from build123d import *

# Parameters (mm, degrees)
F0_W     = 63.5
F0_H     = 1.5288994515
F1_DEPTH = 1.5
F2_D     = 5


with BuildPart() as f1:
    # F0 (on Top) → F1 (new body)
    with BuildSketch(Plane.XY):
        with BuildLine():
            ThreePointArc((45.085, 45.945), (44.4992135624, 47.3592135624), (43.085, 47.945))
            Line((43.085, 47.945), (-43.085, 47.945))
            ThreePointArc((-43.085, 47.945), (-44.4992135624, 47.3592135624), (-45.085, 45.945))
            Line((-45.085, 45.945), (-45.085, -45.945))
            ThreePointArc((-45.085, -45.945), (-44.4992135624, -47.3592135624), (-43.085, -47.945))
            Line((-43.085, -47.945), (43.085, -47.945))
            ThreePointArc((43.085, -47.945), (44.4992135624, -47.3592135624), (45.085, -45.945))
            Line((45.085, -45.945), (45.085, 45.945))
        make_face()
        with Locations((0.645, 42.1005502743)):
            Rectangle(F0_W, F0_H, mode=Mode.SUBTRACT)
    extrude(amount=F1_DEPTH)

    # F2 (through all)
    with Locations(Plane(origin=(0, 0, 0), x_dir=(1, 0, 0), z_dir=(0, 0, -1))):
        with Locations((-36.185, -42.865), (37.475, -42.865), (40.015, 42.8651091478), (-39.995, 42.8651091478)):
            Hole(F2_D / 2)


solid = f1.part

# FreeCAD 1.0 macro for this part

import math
import FreeCAD as App
import Part
import Sketcher

V = App.Vector

doc = App.newDocument("Part")
body = doc.addObject("PartDesign::Body", "Body")

sketch1 = body.newObject("Sketcher::SketchObject", "Sketch")
sketch1.AttachmentSupport = (doc.getObject("XY_Plane"), [""])
sketch1.MapMode = "FlatFace"
sketch1.addGeometry(Part.ArcOfCircle(Part.Circle(V(43.1, 45.9, 0), V(0, 0, 1), 2), math.radians(0), math.radians(90)), False)
sketch1.addGeometry(Part.LineSegment(V(43.1, 47.9, 0), V(-43.1, 47.9, 0)), False)
sketch1.addGeometry(Part.ArcOfCircle(Part.Circle(V(-43.1, 45.9, 0), V(0, 0, 1), 2), math.radians(90), math.radians(180)), False)
sketch1.addGeometry(Part.LineSegment(V(-45.1, 45.9, 0), V(-45.1, -45.9, 0)), False)
sketch1.addGeometry(Part.ArcOfCircle(Part.Circle(V(-43.1, -45.9, 0), V(0, 0, 1), 2), math.radians(180), math.radians(270)), False)
sketch1.addGeometry(Part.LineSegment(V(-43.1, -47.9, 0), V(43.1, -47.9, 0)), False)
sketch1.addGeometry(Part.ArcOfCircle(Part.Circle(V(43.1, -45.9, 0), V(0, 0, 1), 2), math.radians(-90), math.radians(0)), False)
sketch1.addGeometry(Part.LineSegment(V(45.1, -45.9, 0), V(45.1, 45.9, 0)), False)
sketch1.addGeometry(Part.LineSegment(V(32.4, 41.3, 0), V(-31.1, 41.3, 0)), False)
sketch1.addGeometry(Part.LineSegment(V(-31.1, 41.3, 0), V(-31.1, 42.9, 0)), False)
sketch1.addGeometry(Part.LineSegment(V(-31.1, 42.9, 0), V(32.4, 42.9, 0)), False)
sketch1.addGeometry(Part.LineSegment(V(32.4, 42.9, 0), V(32.4, 41.3, 0)), False)
sketch1.addConstraint(Sketcher.Constraint("Tangent", 0, 2, 1, 1))
sketch1.addConstraint(Sketcher.Constraint("Tangent", 1, 2, 2, 1))
sketch1.addConstraint(Sketcher.Constraint("Tangent", 2, 2, 3, 1))
sketch1.addConstraint(Sketcher.Constraint("Tangent", 3, 2, 4, 1))
sketch1.addConstraint(Sketcher.Constraint("Tangent", 4, 2, 5, 1))
sketch1.addConstraint(Sketcher.Constraint("Tangent", 5, 2, 6, 1))
sketch1.addConstraint(Sketcher.Constraint("Tangent", 6, 2, 7, 1))
sketch1.addConstraint(Sketcher.Constraint("Tangent", 7, 2, 0, 1))
sketch1.addConstraint(Sketcher.Constraint("Coincident", 8, 2, 9, 1))
sketch1.addConstraint(Sketcher.Constraint("Coincident", 9, 2, 10, 1))
sketch1.addConstraint(Sketcher.Constraint("Coincident", 10, 2, 11, 1))
sketch1.addConstraint(Sketcher.Constraint("Coincident", 11, 2, 8, 1))
sketch1.addConstraint(Sketcher.Constraint("Horizontal", 1))
sketch1.addConstraint(Sketcher.Constraint("Vertical", 3))
sketch1.addConstraint(Sketcher.Constraint("Horizontal", 5))
sketch1.addConstraint(Sketcher.Constraint("Vertical", 7))
sketch1.addConstraint(Sketcher.Constraint("Horizontal", 8))
sketch1.addConstraint(Sketcher.Constraint("Vertical", 9))
sketch1.addConstraint(Sketcher.Constraint("Horizontal", 10))
sketch1.addConstraint(Sketcher.Constraint("Vertical", 11))
sketch1.addConstraint(Sketcher.Constraint("Equal", 0, 2))
sketch1.addConstraint(Sketcher.Constraint("Equal", 2, 4))
sketch1.addConstraint(Sketcher.Constraint("Equal", 4, 6))
sketch1.addConstraint(Sketcher.Constraint("Symmetric", 0, 3, 4, 3, -1, 1))
sketch1.addConstraint(Sketcher.Constraint("Radius", 0, 2.0))
sketch1.addConstraint(Sketcher.Constraint("DistanceX", 8, 2, 8, 1, 63.5))
sketch1.addConstraint(Sketcher.Constraint("DistanceX", 1, 2, 1, 1, 86.17))
sketch1.addConstraint(Sketcher.Constraint("DistanceY", 3, 2, 3, 1, 91.89))
sketch1.addConstraint(Sketcher.Constraint("DistanceX", 2, 3, 8, 2, 11.98))
sketch1.addConstraint(Sketcher.Constraint("DistanceY", 9, 2, 2, 3, 3.08))
sketch1.addConstraint(Sketcher.Constraint("DistanceY", 9, 1, 9, 2, 1.528899))
pad1 = body.newObject("PartDesign::Pad", "Pad")
pad1.Profile = sketch1
pad1.Length = 1.5

sketch2 = body.newObject("Sketcher::SketchObject", "Sketch001")
sketch2.AttachmentSupport = (doc.getObject("XY_Plane"), [""])
sketch2.MapMode = "FlatFace"
sketch2.addGeometry(Part.Circle(V(-36.2, 42.9, 0), V(0, 0, 1), 2.5), False)
sketch2.addGeometry(Part.Circle(V(37.5, 42.9, 0), V(0, 0, 1), 2.5), False)
sketch2.addGeometry(Part.Circle(V(40, -42.9, 0), V(0, 0, 1), 2.5), False)
sketch2.addGeometry(Part.Circle(V(-40, -42.9, 0), V(0, 0, 1), 2.5), False)
sketch2.addConstraint(Sketcher.Constraint("Equal", 0, 1))
sketch2.addConstraint(Sketcher.Constraint("Equal", 1, 2))
sketch2.addConstraint(Sketcher.Constraint("Equal", 2, 3))
sketch2.addConstraint(Sketcher.Constraint("Horizontal", 0, 3, 1, 3))
sketch2.addConstraint(Sketcher.Constraint("Horizontal", 2, 3, 3, 3))
sketch2.addConstraint(Sketcher.Constraint("Diameter", 0, 5.0))
sketch2.addConstraint(Sketcher.Constraint("DistanceX", 0, 3, 2, 3, 76.2))
sketch2.addConstraint(Sketcher.Constraint("DistanceX", 0, 3, 1, 3, 73.66))
sketch2.addConstraint(Sketcher.Constraint("DistanceX", 3, 3, 2, 3, 80.01))
sketch2.addConstraint(Sketcher.Constraint("DistanceX", 0, 3, -1, 1, 36.185))
sketch2.addConstraint(Sketcher.Constraint("DistanceY", -1, 1, 0, 3, 42.865))
sketch2.addConstraint(Sketcher.Constraint("DistanceY", 2, 3, -1, 1, 42.865109))
doc.recompute()
hole = body.newObject("PartDesign::Hole", "Hole")
hole.Profile = sketch2
hole.ThreadType = "None"
hole.Diameter = 5
hole.DepthType = "ThroughAll"
hole.Reversed = True

doc.recompute()
